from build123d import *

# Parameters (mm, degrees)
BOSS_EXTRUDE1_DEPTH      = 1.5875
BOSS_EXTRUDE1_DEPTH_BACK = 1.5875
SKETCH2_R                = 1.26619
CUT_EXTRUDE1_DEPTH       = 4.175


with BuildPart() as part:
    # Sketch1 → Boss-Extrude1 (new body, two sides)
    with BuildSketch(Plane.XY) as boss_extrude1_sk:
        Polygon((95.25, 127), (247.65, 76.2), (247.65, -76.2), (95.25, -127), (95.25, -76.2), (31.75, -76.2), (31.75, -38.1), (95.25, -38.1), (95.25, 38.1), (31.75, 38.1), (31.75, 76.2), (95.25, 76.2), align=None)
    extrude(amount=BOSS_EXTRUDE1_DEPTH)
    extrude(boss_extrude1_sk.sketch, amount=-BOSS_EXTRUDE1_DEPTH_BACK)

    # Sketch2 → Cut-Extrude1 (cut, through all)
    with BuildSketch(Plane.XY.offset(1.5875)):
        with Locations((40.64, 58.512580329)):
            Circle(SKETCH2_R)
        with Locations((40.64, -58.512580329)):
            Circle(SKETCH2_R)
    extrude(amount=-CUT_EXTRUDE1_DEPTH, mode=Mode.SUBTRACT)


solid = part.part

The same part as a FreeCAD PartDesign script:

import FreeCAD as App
import Part
import Sketcher
from FreeCAD import Vector
Q = App.Units.Quantity


def add_polygon(sketch, points):
    """Adds a closed chain of lines whose ends are joined by coincident constraints."""
    first, n = sketch.GeometryCount, len(points)
    for a, b in zip(points, points[1:] + points[:1]):
        sketch.addGeometry(Part.LineSegment(App.Vector(*a, 0), App.Vector(*b, 0)), False)
    for i in range(n):
        sketch.addConstraint(Sketcher.Constraint("Coincident", first + i, 2, first + (i + 1) % n, 1))

doc = App.newDocument("Part")
body = doc.addObject("PartDesign::Body", "Body")

sketch1 = body.newObject("Sketcher::SketchObject", "Sketch")
sketch1.AttachmentSupport = (doc.getObject("XY_Plane"), [""])
sketch1.MapMode = "FlatFace"
add_polygon(sketch1, [(248, 76), (95, 127), (95, 76), (32, 76), (32, 38), (95, 38), (95, -38), (32, -38), (32, -76), (95, -76), (95, -127), (248, -76)])
sketch1.addConstraint([
    Sketcher.Constraint("Vertical", 1),
    Sketcher.Constraint("Horizontal", 2),
    Sketcher.Constraint("Vertical", 3),
    Sketcher.Constraint("Horizontal", 4),
    Sketcher.Constraint("Vertical", 5),
    Sketcher.Constraint("Horizontal", 6),
    Sketcher.Constraint("Vertical", 7),
    Sketcher.Constraint("Horizontal", 8),
    Sketcher.Constraint("Vertical", 9),
    Sketcher.Constraint("Vertical", 11),
    Sketcher.Constraint("Symmetric", 3, 2, 6, 2, -1),
    Sketcher.Constraint("Symmetric", 1, 2, 8, 2, -1),
    Sketcher.Constraint("Horizontal", 8, 2, 10, 2),
    Sketcher.Constraint("Horizontal", 2, 2, 11, 2),
    Sketcher.Constraint("Vertical", 1, 2, 4, 2),
    Sketcher.Constraint("Equal", 1, 9),
    Sketcher.Constraint("DistanceY", 1, 2, 1, 1, Q("2 in")),
    Sketcher.Constraint("DistanceY", 5, 2, 5, 1, Q("3 in")),
    Sketcher.Constraint("DistanceY", 11, 1, 11, 2, Q("6 in")),
    Sketcher.Constraint("DistanceX", 2, 2, 2, 1, Q("2.5 in")),
    Sketcher.Constraint("DistanceX", 8, 2, 10, 2, Q("6 in")),
    Sketcher.Constraint("DistanceX", -1, 1, 0, 2, Q("3.75 in")),
])
pad1 = body.newObject("PartDesign::Pad", "Pad")
pad1.Profile = sketch1
pad1.Type = "TwoLengths"
pad1.Length = Q("0.0625 in")
pad1.Length2 = Q("0.0625 in")

sketch2 = body.newObject("Sketcher::SketchObject", "Sketch001")
sketch2.AttachmentSupport = (doc.getObject("XY_Plane"), [""])
sketch2.MapMode = "FlatFace"
sketch2.AttachmentOffset = App.Placement(Vector(0, 0, 0.0625 * 25.4), App.Rotation())
sketch2.addGeometry([
    Part.Circle(Vector(40.6, 58.5, 0), Vector(0, 0, 1), 1.3),
    Part.Circle(Vector(40.6, -58.5, 0), Vector(0, 0, 1), 1.3),
], False)
sketch2.addConstraint([
    Sketcher.Constraint("Equal", 0, 1),
    Sketcher.Constraint("Symmetric", 0, 3, 1, 3, -1),
    Sketcher.Constraint("Diameter", 0, Q("0.0997 in")),
    Sketcher.Constraint("DistanceX", -1, 1, 0, 3, Q("1.6 in")),
    Sketcher.Constraint("DistanceY", -1, 1, 0, 3, Q("58.51258 mm")),
])
pocket1 = body.newObject("PartDesign::Pocket", "Pocket")
pocket1.Profile = sketch2
pocket1.Type = "ThroughAll"

doc.recompute()
